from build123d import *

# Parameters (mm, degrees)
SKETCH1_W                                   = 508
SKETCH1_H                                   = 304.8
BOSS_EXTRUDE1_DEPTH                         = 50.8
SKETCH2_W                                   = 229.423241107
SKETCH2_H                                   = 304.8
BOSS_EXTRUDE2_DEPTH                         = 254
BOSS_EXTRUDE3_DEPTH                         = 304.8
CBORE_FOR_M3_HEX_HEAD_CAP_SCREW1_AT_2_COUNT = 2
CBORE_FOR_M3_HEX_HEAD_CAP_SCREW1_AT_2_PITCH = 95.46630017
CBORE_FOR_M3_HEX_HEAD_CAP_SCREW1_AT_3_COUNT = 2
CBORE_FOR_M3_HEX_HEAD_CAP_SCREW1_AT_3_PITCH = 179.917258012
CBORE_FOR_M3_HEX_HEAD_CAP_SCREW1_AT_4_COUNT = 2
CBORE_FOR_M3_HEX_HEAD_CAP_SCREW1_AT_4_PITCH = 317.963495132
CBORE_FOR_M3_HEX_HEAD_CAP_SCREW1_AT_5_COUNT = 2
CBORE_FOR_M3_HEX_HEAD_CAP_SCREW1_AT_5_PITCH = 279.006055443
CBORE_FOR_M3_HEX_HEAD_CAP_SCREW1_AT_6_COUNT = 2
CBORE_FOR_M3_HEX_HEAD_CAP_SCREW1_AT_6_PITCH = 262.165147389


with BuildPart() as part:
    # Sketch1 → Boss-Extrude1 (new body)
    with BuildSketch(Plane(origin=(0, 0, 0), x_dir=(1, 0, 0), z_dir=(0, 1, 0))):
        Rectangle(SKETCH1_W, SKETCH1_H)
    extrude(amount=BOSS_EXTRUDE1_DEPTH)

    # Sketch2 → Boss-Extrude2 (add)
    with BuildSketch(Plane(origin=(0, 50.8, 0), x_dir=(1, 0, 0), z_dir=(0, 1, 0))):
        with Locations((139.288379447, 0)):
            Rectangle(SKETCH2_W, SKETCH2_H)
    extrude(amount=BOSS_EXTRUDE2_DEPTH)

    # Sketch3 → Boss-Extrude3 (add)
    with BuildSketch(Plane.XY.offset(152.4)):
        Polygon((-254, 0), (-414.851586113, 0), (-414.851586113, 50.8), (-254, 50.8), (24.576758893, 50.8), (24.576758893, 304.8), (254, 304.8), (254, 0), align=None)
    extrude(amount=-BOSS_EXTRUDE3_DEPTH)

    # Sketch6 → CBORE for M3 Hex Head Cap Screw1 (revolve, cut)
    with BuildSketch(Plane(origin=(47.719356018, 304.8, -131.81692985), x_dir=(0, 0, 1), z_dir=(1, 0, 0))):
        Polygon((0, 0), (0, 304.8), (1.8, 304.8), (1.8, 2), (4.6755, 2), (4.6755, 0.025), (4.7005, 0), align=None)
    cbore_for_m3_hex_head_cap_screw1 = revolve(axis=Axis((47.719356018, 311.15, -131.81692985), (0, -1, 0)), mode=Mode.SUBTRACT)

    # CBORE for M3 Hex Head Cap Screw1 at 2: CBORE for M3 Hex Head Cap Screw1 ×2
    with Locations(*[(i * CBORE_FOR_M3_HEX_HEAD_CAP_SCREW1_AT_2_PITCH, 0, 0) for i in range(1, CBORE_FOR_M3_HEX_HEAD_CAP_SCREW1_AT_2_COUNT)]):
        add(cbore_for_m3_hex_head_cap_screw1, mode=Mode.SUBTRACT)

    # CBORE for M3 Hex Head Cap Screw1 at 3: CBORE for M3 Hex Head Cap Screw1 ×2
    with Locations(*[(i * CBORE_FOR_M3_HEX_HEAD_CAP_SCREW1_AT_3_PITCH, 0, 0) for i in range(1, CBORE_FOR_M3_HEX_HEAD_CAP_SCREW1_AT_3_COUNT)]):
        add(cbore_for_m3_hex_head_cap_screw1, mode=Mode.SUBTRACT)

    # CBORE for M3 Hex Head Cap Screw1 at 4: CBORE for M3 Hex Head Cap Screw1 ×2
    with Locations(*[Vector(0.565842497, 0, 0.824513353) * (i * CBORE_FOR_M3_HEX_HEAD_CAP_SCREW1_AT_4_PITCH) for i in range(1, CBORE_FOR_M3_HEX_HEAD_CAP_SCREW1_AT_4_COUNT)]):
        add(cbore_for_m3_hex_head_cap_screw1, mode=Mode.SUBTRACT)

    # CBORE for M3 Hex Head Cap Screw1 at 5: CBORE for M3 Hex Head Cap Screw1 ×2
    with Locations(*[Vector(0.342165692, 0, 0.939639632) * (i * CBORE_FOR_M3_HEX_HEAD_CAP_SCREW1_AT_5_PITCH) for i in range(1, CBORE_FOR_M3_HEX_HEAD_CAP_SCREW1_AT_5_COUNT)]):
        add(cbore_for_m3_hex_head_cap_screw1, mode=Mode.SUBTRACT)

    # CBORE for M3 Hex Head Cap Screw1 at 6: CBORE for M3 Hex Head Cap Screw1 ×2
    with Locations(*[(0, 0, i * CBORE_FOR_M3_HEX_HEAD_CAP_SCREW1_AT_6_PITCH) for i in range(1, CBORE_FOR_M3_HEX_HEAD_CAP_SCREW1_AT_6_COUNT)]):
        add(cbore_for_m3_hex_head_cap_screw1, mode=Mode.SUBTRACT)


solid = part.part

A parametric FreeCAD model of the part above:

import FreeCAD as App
import Part
import Sketcher
from FreeCAD import Vector
Q = App.Units.Quantity

doc = App.newDocument("Part")
body = doc.addObject("PartDesign::Body", "Body")

sketch1 = body.newObject("Sketcher::SketchObject", "Sketch")
sketch1.AttachmentSupport = (doc.getObject("XZ_Plane"), [""])
sketch1.MapMode = "FlatFace"
sketch1.addGeometry(Part.LineSegment(Vector(-254, -152.4, 0), Vector(-254, 152.4, 0)), False)
sketch1.addGeometry(Part.LineSegment(Vector(-254, 152.4, 0), Vector(254, 152.4, 0)), False)
sketch1.addGeometry(Part.LineSegment(Vector(254, 152.4, 0), Vector(254, -152.4, 0)), False)
sketch1.addGeometry(Part.LineSegment(Vector(254, -152.4, 0), Vector(-254, -152.4, 0)), False)
sketch1.addConstraint(Sketcher.Constraint("Coincident", 0, 2, 1, 1))
sketch1.addConstraint(Sketcher.Constraint("Coincident", 1, 2, 2, 1))
sketch1.addConstraint(Sketcher.Constraint("Coincident", 2, 2, 3, 1))
sketch1.addConstraint(Sketcher.Constraint("Coincident", 3, 2, 0, 1))
sketch1.addConstraint(Sketcher.Constraint("Vertical", 0))
sketch1.addConstraint(Sketcher.Constraint("Horizontal", 1))
sketch1.addConstraint(Sketcher.Constraint("Vertical", 2))
sketch1.addConstraint(Sketcher.Constraint("Horizontal", 3))
sketch1.addConstraint(Sketcher.Constraint("Symmetric", 0, 2, 2, 2, -1, 1))
sketch1.addConstraint(Sketcher.Constraint("DistanceX", 1, 1, 1, 2, Q("20 in")))
sketch1.addConstraint(Sketcher.Constraint("DistanceY", 0, 1, 0, 2, Q("12 in")))
pad1 = body.newObject("PartDesign::Pad", "Pad")
pad1.Profile = sketch1
pad1.Length = Q("2 in")
pad1.Reversed = True

sketch2 = body.newObject("Sketcher::SketchObject", "Sketch001")
sketch2.AttachmentSupport = (doc.getObject("XZ_Plane"), [""])
sketch2.MapMode = "FlatFace"
sketch2.AttachmentOffset = App.Placement(Vector(0, 0, -2 * 25.4), App.Rotation())
sketch2.addGeometry(Part.LineSegment(Vector(24.576759, -152.4, 0), Vector(24.576759, 152.4, 0)), False)
sketch2.addGeometry(Part.LineSegment(Vector(24.576759, 152.4, 0), Vector(254, 152.4, 0)), False)
sketch2.addGeometry(Part.LineSegment(Vector(254, 152.4, 0), Vector(254, -152.4, 0)), False)
sketch2.addGeometry(Part.LineSegment(Vector(254, -152.4, 0), Vector(24.576759, -152.4, 0)), False)
sketch2.addConstraint(Sketcher.Constraint("Coincident", 0, 2, 1, 1))
sketch2.addConstraint(Sketcher.Constraint("Coincident", 1, 2, 2, 1))
sketch2.addConstraint(Sketcher.Constraint("Coincident", 2, 2, 3, 1))
sketch2.addConstraint(Sketcher.Constraint("Coincident", 3, 2, 0, 1))
sketch2.addConstraint(Sketcher.Constraint("Vertical", 0))
sketch2.addConstraint(Sketcher.Constraint("Horizontal", 1))
sketch2.addConstraint(Sketcher.Constraint("Vertical", 2))
sketch2.addConstraint(Sketcher.Constraint("Horizontal", 3))
sketch2.addConstraint(Sketcher.Constraint("DistanceY", 0, 1, 0, 2, Q("12 in")))
sketch2.addConstraint(Sketcher.Constraint("DistanceY", -1, 1, 0, 2, Q("6 in")))
sketch2.addConstraint(Sketcher.Constraint("DistanceX", -1, 1, 1, 2, Q("10 in")))
sketch2.addConstraint(Sketcher.Constraint("DistanceX", 1, 1, 1, 2, Q("229.423241 mm")))
pad2 = body.newObject("PartDesign::Pad", "Pad001")
pad2.Profile = sketch2
pad2.Length = Q("10 in")
pad2.Reversed = True

sketch3 = body.newObject("Sketcher::SketchObject", "Sketch002")
sketch3.AttachmentSupport = (doc.getObject("XY_Plane"), [""])
sketch3.MapMode = "FlatFace"
sketch3.AttachmentOffset = App.Placement(Vector(0, 0, 6 * 25.4), App.Rotation())
sketch3.addGeometry(Part.LineSegment(Vector(-414.851586, 0, 0), Vector(254, 0, 0)), False)
sketch3.addGeometry(Part.LineSegment(Vector(254, 0, 0), Vector(254, 304.8, 0)), False)
sketch3.addGeometry(Part.LineSegment(Vector(254, 304.8, 0), Vector(24.576759, 304.8, 0)), False)
sketch3.addGeometry(Part.LineSegment(Vector(24.576759, 304.8, 0), Vector(24.576759, 50.8, 0)), False)
sketch3.addGeometry(Part.LineSegment(Vector(24.576759, 50.8, 0), Vector(-414.851586, 50.8, 0)), False)
sketch3.addGeometry(Part.LineSegment(Vector(-414.851586, 50.8, 0), Vector(-414.851586, 0, 0)), False)
sketch3.addConstraint(Sketcher.Constraint("Coincident", 0, 2, 1, 1))
sketch3.addConstraint(Sketcher.Constraint("Coincident", 1, 2, 2, 1))
sketch3.addConstraint(Sketcher.Constraint("Coincident", 2, 2, 3, 1))
sketch3.addConstraint(Sketcher.Constraint("Coincident", 3, 2, 4, 1))
sketch3.addConstraint(Sketcher.Constraint("Coincident", 4, 2, 5, 1))
sketch3.addConstraint(Sketcher.Constraint("Coincident", 5, 2, 0, 1))
sketch3.addConstraint(Sketcher.Constraint("Horizontal", 0))
sketch3.addConstraint(Sketcher.Constraint("Vertical", 1))
sketch3.addConstraint(Sketcher.Constraint("Horizontal", 2))
sketch3.addConstraint(Sketcher.Constraint("Vertical", 3))
sketch3.addConstraint(Sketcher.Constraint("Horizontal", 4))
sketch3.addConstraint(Sketcher.Constraint("Vertical", 5))
sketch3.addConstraint(Sketcher.Constraint("PointOnObject", 0, 2, -1))
sketch3.addConstraint(Sketcher.Constraint("DistanceY", 1, 1, 1, 2, Q("12 in")))
sketch3.addConstraint(Sketcher.Constraint("DistanceY", 3, 2, 3, 1, Q("10 in")))
sketch3.addConstraint(Sketcher.Constraint("DistanceX", -1, 1, 0, 2, Q("10 in")))
sketch3.addConstraint(Sketcher.Constraint("DistanceX", 2, 2, 2, 1, Q("229.423241 mm")))
sketch3.addConstraint(Sketcher.Constraint("DistanceX", 0, 1, 0, 2, Q("668.851586 mm")))
pad3 = body.newObject("PartDesign::Pad", "Pad002")
pad3.Profile = sketch3
pad3.Length = Q("12 in")
pad3.Reversed = True

sketch4 = body.newObject("Sketcher::SketchObject", "Sketch003")
sketch4.AttachmentSupport = (doc.getObject("YZ_Plane"), [""])
sketch4.MapMode = "FlatFace"
sketch4.AttachmentOffset = App.Placement(Vector(0, 0, 47.719356), App.Rotation())
sketch4.addGeometry(Part.LineSegment(Vector(0, -131.81693, 0), Vector(304.8, -131.81693, 0)), False)
sketch4.addGeometry(Part.LineSegment(Vector(304.8, -131.81693, 0), Vector(304.8, -127.11643, 0)), False)
sketch4.addGeometry(Part.LineSegment(Vector(304.8, -127.11643, 0), Vector(304.775, -127.14143, 0)), False)
sketch4.addGeometry(Part.LineSegment(Vector(304.775, -127.14143, 0), Vector(302.8, -127.14143, 0)), False)
sketch4.addGeometry(Part.LineSegment(Vector(302.8, -127.14143, 0), Vector(302.8, -130.01693, 0)), False)
sketch4.addGeometry(Part.LineSegment(Vector(302.8, -130.01693, 0), Vector(0, -130.01693, 0)), False)
sketch4.addGeometry(Part.LineSegment(Vector(0, -130.01693, 0), Vector(0, -131.81693, 0)), False)
sketch4.addGeometry(Part.LineSegment(Vector(304.8, -131.81693, 0), Vector(0, -131.81693, 0)), True)
sketch4.addConstraint(Sketcher.Constraint("Coincident", 0, 2, 1, 1))
sketch4.addConstraint(Sketcher.Constraint("Coincident", 1, 2, 2, 1))
sketch4.addConstraint(Sketcher.Constraint("Coincident", 2, 2, 3, 1))
sketch4.addConstraint(Sketcher.Constraint("Coincident", 3, 2, 4, 1))
sketch4.addConstraint(Sketcher.Constraint("Coincident", 4, 2, 5, 1))
sketch4.addConstraint(Sketcher.Constraint("Coincident", 5, 2, 6, 1))
sketch4.addConstraint(Sketcher.Constraint("Coincident", 6, 2, 0, 1))
sketch4.addConstraint(Sketcher.Constraint("Horizontal", 0))
sketch4.addConstraint(Sketcher.Constraint("Vertical", 1))
sketch4.addConstraint(Sketcher.Constraint("Horizontal", 3))
sketch4.addConstraint(Sketcher.Constraint("Vertical", 4))
sketch4.addConstraint(Sketcher.Constraint("Horizontal", 5))
sketch4.addConstraint(Sketcher.Constraint("Vertical", 6))
sketch4.addConstraint(Sketcher.Constraint("Horizontal", 7))
sketch4.addConstraint(Sketcher.Constraint("Coincident", 7, 1, 0, 2))
sketch4.addConstraint(Sketcher.Constraint("PointOnObject", 5, 2, -2))
sketch4.addConstraint(Sketcher.Constraint("PointOnObject", 7, 2, -2))
sketch4.addConstraint(Sketcher.Constraint("DistanceX", 0, 1, 0, 2, Q("12 in")))
sketch4.addConstraint(Sketcher.Constraint("Angle", 2, Q("-135 deg")))
sketch4.addConstraint(Sketcher.Constraint("DistanceX", 3, 2, 3, 1, Q("1.975 mm")))
sketch4.addConstraint(Sketcher.Constraint("DistanceX", 5, 2, 5, 1, Q("302.8 mm")))
sketch4.addConstraint(Sketcher.Constraint("DistanceY", 1, 1, 1, 2, Q("4.7005 mm")))
sketch4.addConstraint(Sketcher.Constraint("DistanceY", 4, 2, 4, 1, Q("2.8755 mm")))
sketch4.addConstraint(Sketcher.Constraint("DistanceY", 0, 2, -1, 1, Q("131.81693 mm")))
groove = body.newObject("PartDesign::Groove", "Groove")
groove.Profile = sketch4
groove.ReferenceAxis = (sketch4, ["Axis0"])
groove.Angle = 360
doc.recompute()

linearpattern = body.newObject("PartDesign::LinearPattern", "LinearPattern")
linearpattern.Originals = [groove]
linearpattern.Direction = (doc.getObject("X_Axis"), [""])
linearpattern.Mode = "offset"
linearpattern.Offset = 95.4663
linearpattern.Occurrences = 2
body.Tip = linearpattern
doc.recompute()

linearpattern2 = body.newObject("PartDesign::LinearPattern", "LinearPattern001")
linearpattern2.Originals = [groove]
linearpattern2.Direction = (doc.getObject("X_Axis"), [""])
linearpattern2.Mode = "offset"
linearpattern2.Offset = 179.917258
linearpattern2.Occurrences = 2
body.Tip = linearpattern2
doc.recompute()

datumline = body.newObject("PartDesign::Line", "DatumLine")
datumline.Placement = App.Placement(Vector(0, 0, 0), App.Rotation(Vector(0, 0, 1), Vector(0.565842497, 0, 0.824513353)))
linearpattern3 = body.newObject("PartDesign::LinearPattern", "LinearPattern002")
linearpattern3.Originals = [groove]
linearpattern3.Direction = (datumline, [""])
linearpattern3.Mode = "offset"
linearpattern3.Offset = 317.963495
linearpattern3.Occurrences = 2
body.Tip = linearpattern3
doc.recompute()

datumline2 = body.newObject("PartDesign::Line", "DatumLine001")
datumline2.Placement = App.Placement(Vector(0, 0, 0), App.Rotation(Vector(0, 0, 1), Vector(0.342165692, 0, 0.939639633)))
linearpattern4 = body.newObject("PartDesign::LinearPattern", "LinearPattern003")
linearpattern4.Originals = [groove]
linearpattern4.Direction = (datumline2, [""])
linearpattern4.Mode = "offset"
linearpattern4.Offset = 279.006055
linearpattern4.Occurrences = 2
body.Tip = linearpattern4
doc.recompute()

linearpattern5 = body.newObject("PartDesign::LinearPattern", "LinearPattern004")
linearpattern5.Originals = [groove]
linearpattern5.Direction = (doc.getObject("Z_Axis"), [""])
linearpattern5.Mode = "offset"
linearpattern5.Offset = 262.165147
linearpattern5.Occurrences = 2
body.Tip = linearpattern5

doc.recompute()
